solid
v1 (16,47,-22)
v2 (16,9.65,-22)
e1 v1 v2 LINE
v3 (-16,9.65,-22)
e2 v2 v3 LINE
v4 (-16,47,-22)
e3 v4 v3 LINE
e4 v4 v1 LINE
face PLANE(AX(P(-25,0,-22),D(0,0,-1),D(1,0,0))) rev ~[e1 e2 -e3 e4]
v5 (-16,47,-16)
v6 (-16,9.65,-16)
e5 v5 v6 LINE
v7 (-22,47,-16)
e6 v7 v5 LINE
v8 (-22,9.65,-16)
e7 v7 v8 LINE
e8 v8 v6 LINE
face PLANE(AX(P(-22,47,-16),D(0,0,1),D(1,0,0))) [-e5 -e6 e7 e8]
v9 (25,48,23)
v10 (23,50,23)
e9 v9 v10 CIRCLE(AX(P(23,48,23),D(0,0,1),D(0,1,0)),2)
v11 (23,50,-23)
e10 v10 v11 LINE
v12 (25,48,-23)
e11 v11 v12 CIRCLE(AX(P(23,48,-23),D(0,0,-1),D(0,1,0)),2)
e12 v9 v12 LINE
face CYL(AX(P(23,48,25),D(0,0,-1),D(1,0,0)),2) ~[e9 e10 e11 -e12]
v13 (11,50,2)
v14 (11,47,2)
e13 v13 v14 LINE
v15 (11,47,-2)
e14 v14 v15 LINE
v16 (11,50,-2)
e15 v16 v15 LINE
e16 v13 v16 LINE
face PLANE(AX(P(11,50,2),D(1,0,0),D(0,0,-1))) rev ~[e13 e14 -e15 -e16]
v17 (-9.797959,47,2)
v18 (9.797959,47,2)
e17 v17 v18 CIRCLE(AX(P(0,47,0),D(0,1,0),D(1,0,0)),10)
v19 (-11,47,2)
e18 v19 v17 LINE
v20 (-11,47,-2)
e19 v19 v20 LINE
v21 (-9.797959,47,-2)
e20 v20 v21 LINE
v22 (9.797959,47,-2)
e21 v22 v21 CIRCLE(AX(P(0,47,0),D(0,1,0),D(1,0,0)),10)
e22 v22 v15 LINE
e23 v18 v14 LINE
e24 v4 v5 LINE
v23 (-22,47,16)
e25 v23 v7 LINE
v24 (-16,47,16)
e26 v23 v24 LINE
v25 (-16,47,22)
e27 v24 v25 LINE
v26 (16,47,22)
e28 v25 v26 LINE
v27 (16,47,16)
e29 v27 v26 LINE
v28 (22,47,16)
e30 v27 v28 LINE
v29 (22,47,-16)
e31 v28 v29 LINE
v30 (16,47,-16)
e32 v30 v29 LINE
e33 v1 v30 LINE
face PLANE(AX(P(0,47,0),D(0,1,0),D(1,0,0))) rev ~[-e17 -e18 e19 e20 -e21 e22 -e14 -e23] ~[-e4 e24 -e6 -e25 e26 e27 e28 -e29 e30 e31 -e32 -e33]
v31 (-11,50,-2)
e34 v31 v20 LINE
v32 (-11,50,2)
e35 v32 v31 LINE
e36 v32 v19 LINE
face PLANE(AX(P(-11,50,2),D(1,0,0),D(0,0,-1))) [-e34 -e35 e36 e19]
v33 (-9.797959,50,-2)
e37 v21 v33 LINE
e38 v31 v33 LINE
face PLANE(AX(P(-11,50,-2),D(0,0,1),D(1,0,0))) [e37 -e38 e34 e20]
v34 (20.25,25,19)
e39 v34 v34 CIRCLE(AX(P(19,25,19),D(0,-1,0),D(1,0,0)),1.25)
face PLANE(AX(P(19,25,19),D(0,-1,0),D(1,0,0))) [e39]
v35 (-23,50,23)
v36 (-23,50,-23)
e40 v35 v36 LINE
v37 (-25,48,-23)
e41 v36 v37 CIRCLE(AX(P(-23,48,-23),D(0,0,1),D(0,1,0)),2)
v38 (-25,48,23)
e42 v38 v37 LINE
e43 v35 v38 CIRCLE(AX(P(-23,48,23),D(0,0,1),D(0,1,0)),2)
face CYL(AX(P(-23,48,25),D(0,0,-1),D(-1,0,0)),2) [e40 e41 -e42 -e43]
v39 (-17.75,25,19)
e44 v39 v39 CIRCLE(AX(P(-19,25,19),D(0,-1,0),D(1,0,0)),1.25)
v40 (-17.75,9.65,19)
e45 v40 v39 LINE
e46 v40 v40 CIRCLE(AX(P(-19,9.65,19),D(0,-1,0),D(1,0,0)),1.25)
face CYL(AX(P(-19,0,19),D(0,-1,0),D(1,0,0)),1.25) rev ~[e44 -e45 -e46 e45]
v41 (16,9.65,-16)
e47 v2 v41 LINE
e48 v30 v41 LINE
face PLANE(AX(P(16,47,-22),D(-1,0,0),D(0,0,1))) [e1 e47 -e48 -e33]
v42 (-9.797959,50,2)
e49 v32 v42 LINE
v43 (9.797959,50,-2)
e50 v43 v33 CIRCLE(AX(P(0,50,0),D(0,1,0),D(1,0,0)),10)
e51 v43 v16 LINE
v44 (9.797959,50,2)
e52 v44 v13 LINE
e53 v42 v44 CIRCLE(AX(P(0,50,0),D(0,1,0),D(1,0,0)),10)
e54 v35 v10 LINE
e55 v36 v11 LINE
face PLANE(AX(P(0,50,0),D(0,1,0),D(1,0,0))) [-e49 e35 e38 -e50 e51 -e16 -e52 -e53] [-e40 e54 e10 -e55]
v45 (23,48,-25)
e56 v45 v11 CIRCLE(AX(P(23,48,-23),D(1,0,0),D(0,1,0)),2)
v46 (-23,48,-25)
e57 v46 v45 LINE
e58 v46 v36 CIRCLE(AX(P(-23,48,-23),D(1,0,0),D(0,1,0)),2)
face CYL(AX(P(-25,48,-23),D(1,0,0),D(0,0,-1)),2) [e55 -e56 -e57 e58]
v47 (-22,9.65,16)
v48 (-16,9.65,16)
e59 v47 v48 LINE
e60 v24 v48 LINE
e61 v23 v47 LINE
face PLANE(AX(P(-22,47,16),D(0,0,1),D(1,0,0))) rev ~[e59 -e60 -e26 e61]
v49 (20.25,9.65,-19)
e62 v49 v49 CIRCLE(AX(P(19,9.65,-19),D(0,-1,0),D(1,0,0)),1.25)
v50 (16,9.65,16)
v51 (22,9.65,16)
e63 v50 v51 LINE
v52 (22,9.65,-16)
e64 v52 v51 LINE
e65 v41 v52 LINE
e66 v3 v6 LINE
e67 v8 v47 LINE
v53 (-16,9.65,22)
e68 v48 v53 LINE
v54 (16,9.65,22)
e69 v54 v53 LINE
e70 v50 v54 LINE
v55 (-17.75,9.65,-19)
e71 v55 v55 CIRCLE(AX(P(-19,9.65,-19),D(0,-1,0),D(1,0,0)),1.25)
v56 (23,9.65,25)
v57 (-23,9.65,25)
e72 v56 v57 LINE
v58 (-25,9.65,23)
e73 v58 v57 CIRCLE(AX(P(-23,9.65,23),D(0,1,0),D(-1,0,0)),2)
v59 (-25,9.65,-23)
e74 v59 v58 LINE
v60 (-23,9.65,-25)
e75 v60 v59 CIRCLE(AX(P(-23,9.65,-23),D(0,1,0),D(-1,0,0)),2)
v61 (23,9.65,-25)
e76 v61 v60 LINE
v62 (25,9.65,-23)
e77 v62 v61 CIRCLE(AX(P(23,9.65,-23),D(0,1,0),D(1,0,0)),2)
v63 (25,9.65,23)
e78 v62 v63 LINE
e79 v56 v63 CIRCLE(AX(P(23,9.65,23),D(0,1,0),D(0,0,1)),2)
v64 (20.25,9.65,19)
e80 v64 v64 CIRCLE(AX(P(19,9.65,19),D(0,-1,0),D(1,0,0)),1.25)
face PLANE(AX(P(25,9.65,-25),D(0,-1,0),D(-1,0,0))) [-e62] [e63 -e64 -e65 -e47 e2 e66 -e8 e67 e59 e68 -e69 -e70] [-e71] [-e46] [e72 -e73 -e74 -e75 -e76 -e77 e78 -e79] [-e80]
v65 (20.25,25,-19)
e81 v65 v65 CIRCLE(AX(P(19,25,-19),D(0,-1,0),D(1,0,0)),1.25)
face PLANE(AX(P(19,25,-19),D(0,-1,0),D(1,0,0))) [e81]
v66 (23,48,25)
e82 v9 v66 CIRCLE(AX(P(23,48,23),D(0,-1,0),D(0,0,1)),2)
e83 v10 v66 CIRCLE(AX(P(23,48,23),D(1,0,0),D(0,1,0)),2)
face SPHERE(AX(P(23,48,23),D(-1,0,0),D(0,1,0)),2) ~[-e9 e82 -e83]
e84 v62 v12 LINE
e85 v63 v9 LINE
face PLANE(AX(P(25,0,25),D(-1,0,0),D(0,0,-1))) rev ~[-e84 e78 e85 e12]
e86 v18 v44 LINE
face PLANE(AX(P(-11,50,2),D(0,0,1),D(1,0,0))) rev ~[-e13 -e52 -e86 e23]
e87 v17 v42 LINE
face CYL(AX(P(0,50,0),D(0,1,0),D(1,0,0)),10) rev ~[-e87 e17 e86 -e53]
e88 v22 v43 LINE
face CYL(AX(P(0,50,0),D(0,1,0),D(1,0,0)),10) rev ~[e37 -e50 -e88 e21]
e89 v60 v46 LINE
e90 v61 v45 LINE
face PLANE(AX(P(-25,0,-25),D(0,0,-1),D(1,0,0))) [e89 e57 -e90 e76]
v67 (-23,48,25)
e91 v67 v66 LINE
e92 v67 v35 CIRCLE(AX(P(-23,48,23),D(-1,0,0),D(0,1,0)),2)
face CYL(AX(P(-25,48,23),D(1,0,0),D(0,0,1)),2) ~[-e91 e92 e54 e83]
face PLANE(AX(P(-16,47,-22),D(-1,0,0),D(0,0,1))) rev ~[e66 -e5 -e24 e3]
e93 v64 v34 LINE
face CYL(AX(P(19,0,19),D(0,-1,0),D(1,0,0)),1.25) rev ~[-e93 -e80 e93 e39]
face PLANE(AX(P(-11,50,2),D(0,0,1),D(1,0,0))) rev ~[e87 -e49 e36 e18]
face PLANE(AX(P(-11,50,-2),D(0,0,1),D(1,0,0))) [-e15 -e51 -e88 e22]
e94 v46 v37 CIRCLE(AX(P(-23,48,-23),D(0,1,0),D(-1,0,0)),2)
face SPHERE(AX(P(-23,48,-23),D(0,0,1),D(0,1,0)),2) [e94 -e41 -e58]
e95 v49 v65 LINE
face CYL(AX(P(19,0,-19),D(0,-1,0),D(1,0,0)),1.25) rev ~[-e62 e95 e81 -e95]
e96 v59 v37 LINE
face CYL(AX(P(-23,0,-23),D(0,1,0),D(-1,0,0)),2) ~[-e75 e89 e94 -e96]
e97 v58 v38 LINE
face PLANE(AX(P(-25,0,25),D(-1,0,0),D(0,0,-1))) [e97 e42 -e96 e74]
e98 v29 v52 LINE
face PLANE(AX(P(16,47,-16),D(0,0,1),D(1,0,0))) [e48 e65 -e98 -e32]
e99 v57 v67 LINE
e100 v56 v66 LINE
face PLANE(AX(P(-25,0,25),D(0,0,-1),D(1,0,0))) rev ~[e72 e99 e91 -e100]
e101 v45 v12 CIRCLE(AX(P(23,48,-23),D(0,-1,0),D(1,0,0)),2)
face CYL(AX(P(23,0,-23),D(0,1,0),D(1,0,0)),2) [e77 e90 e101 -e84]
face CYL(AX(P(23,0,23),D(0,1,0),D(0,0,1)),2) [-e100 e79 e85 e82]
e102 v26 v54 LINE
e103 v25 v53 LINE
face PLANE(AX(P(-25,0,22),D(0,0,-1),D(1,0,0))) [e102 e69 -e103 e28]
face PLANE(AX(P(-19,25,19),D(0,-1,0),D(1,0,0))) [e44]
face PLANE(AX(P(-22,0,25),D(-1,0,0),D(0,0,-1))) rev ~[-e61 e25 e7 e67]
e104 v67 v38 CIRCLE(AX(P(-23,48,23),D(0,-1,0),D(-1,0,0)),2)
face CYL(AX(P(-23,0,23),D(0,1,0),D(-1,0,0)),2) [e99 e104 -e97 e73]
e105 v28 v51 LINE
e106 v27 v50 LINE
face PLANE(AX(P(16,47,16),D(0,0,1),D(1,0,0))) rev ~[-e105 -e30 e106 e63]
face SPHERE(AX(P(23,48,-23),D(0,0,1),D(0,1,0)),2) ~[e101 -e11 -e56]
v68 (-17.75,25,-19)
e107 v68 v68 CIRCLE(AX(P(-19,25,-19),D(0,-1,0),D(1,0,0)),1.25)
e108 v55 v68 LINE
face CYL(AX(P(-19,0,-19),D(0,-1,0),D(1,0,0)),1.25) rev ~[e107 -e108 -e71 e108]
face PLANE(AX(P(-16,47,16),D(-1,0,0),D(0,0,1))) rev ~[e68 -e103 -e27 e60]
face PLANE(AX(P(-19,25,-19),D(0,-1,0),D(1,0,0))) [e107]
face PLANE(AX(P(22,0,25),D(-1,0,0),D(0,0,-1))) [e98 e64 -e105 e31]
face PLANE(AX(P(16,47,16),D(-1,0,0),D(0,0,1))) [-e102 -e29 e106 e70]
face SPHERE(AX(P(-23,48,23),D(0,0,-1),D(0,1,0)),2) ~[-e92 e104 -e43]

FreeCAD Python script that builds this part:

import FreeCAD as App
import Part
import Sketcher


def edges_at(feature, points):
    """Names of the edges that pass closest to the given points."""
    edges = feature.Shape.Edges
    near = lambda p: min(range(len(edges)), key=lambda i: edges[i].distToShape(Part.Vertex(*p))[0])
    return sorted({f"Edge{near(p) + 1}" for p in points})


def faces_at(feature, points):
    """Names of the faces that lie closest to the given points."""
    faces = feature.Shape.Faces
    near = lambda p: min(range(len(faces)), key=lambda i: faces[i].distToShape(Part.Vertex(*p))[0])
    return sorted({f"Face{near(p) + 1}" for p in points})

doc = App.newDocument("Part")
body = doc.addObject("PartDesign::Body", "Body")

sketch1 = body.newObject("Sketcher::SketchObject", "Sketch")
sketch1.AttachmentSupport = (doc.getObject("XZ_Plane"), [""])
sketch1.MapMode = "FlatFace"
sketch1.addGeometry([
    Part.LineSegment(App.Vector(-25, -25, 0), App.Vector(-25, 25, 0)),
    Part.LineSegment(App.Vector(-25, 25, 0), App.Vector(25, 25, 0)),
    Part.LineSegment(App.Vector(25, 25, 0), App.Vector(25, -25, 0)),
    Part.LineSegment(App.Vector(25, -25, 0), App.Vector(-25, -25, 0)),
], False)
sketch1.addConstraint([
    Sketcher.Constraint("Coincident", 0, 2, 1, 1),
    Sketcher.Constraint("Coincident", 1, 2, 2, 1),
    Sketcher.Constraint("Coincident", 2, 2, 3, 1),
    Sketcher.Constraint("Coincident", 3, 2, 0, 1),
    Sketcher.Constraint("Vertical", 0),
    Sketcher.Constraint("Horizontal", 1),
    Sketcher.Constraint("Vertical", 2),
    Sketcher.Constraint("Horizontal", 3),
    Sketcher.Constraint("Symmetric", 0, 2, 2, 2, -1, 1),
    Sketcher.Constraint("Equal", 3, 0),
    Sketcher.Constraint("DistanceX", 1, 1, 1, 2, 50.0),
])
pad1 = body.newObject("PartDesign::Pad", "Pad")
pad1.Profile = sketch1
pad1.Length = 50
pad1.Reversed = True
doc.recompute()

thickness = body.newObject("PartDesign::Thickness", "Thickness")
thickness.Base = (pad1, faces_at(pad1, [(0, 0, 0)]))
thickness.Value = 3
thickness.Reversed = True
thickness.Join = "Intersection"
doc.recompute()

fillet = body.newObject("PartDesign::Fillet", "Fillet")
fillet.Base = (thickness, edges_at(thickness, [
    (-25, 50, 0),
    (0, 50, 25),
    (25, 50, 0),
    (0, 50, -25),
    (25, 25, 25),
    (-25, 25, 25),
    (-25, 25, -25),
    (25, 25, -25),
]))
fillet.Radius = 2

sketch2 = body.newObject("Sketcher::SketchObject", "Sketch001")
sketch2.AttachmentSupport = (doc.getObject("XZ_Plane"), [""])
sketch2.MapMode = "FlatFace"
sketch2.AttachmentOffset = App.Placement(App.Vector(0, 0, -47), App.Rotation())
sketch2.addGeometry([
    Part.LineSegment(App.Vector(16, 22, 0), App.Vector(16, 16, 0)),
    Part.LineSegment(App.Vector(16, 16, 0), App.Vector(22, 16, 0)),
    Part.LineSegment(App.Vector(22, 16, 0), App.Vector(22, 22, 0)),
    Part.LineSegment(App.Vector(22, 22, 0), App.Vector(16, 22, 0)),
    Part.LineSegment(App.Vector(-22, 22, 0), App.Vector(-22, 16, 0)),
    Part.LineSegment(App.Vector(-22, 16, 0), App.Vector(-16, 16, 0)),
    Part.LineSegment(App.Vector(-16, 16, 0), App.Vector(-16, 22, 0)),
    Part.LineSegment(App.Vector(-16, 22, 0), App.Vector(-22, 22, 0)),
    Part.LineSegment(App.Vector(16, -16, 0), App.Vector(16, -22, 0)),
    Part.LineSegment(App.Vector(16, -22, 0), App.Vector(22, -22, 0)),
    Part.LineSegment(App.Vector(22, -22, 0), App.Vector(22, -16, 0)),
    Part.LineSegment(App.Vector(22, -16, 0), App.Vector(16, -16, 0)),
    Part.LineSegment(App.Vector(-22, -16, 0), App.Vector(-22, -22, 0)),
    Part.LineSegment(App.Vector(-22, -22, 0), App.Vector(-16, -22, 0)),
    Part.LineSegment(App.Vector(-16, -22, 0), App.Vector(-16, -16, 0)),
    Part.LineSegment(App.Vector(-16, -16, 0), App.Vector(-22, -16, 0)),
], False)
sketch2.addConstraint([
    Sketcher.Constraint("Coincident", 0, 2, 1, 1),
    Sketcher.Constraint("Coincident", 1, 2, 2, 1),
    Sketcher.Constraint("Coincident", 2, 2, 3, 1),
    Sketcher.Constraint("Coincident", 3, 2, 0, 1),
    Sketcher.Constraint("Coincident", 4, 2, 5, 1),
    Sketcher.Constraint("Coincident", 5, 2, 6, 1),
    Sketcher.Constraint("Coincident", 6, 2, 7, 1),
    Sketcher.Constraint("Coincident", 7, 2, 4, 1),
    Sketcher.Constraint("Coincident", 8, 2, 9, 1),
    Sketcher.Constraint("Coincident", 9, 2, 10, 1),
    Sketcher.Constraint("Coincident", 10, 2, 11, 1),
    Sketcher.Constraint("Coincident", 11, 2, 8, 1),
    Sketcher.Constraint("Coincident", 12, 2, 13, 1),
    Sketcher.Constraint("Coincident", 13, 2, 14, 1),
    Sketcher.Constraint("Coincident", 14, 2, 15, 1),
    Sketcher.Constraint("Coincident", 15, 2, 12, 1),
    Sketcher.Constraint("Vertical", 0),
    Sketcher.Constraint("Horizontal", 1),
    Sketcher.Constraint("Vertical", 2),
    Sketcher.Constraint("Horizontal", 3),
    Sketcher.Constraint("Vertical", 4),
    Sketcher.Constraint("Horizontal", 5),
    Sketcher.Constraint("Vertical", 6),
    Sketcher.Constraint("Horizontal", 7),
    Sketcher.Constraint("Vertical", 8),
    Sketcher.Constraint("Horizontal", 9),
    Sketcher.Constraint("Vertical", 10),
    Sketcher.Constraint("Horizontal", 11),
    Sketcher.Constraint("Vertical", 12),
    Sketcher.Constraint("Horizontal", 13),
    Sketcher.Constraint("Vertical", 14),
    Sketcher.Constraint("Horizontal", 15),
    Sketcher.Constraint("Symmetric", 6, 2, 8, 2, -1, 1),
    Sketcher.Constraint("Symmetric", 4, 2, 10, 2, -1, 1),
    Sketcher.Constraint("Symmetric", 2, 2, 12, 2, -1, 1),
    Sketcher.Constraint("Symmetric", 0, 2, 14, 2, -1, 1),
    Sketcher.Constraint("Symmetric", 1, 2, 4, 2, -2),
    Sketcher.Constraint("Symmetric", 3, 2, 6, 2, -2),
    Sketcher.Constraint("Equal", 15, 0),
    Sketcher.Constraint("DistanceX", 1, 1, 1, 2, 6.0),
    Sketcher.Constraint("DistanceX", -1, 1, 0, 2, 16.0),
    Sketcher.Constraint("DistanceY", -1, 1, 0, 2, 16.0),
])
pad2 = body.newObject("PartDesign::Pad", "Pad001")
pad2.Profile = sketch2
pad2.Length = 47

sketch3 = body.newObject("Sketcher::SketchObject", "Sketch002")
sketch3.AttachmentSupport = (doc.getObject("XZ_Plane"), [""])
sketch3.MapMode = "FlatFace"
sketch3.addGeometry([
    Part.Circle(App.Vector(-19, 19, 0), App.Vector(0, 0, 1), 1.25),
    Part.Circle(App.Vector(19, 19, 0), App.Vector(0, 0, 1), 1.25),
    Part.Circle(App.Vector(19, -19, 0), App.Vector(0, 0, 1), 1.25),
    Part.Circle(App.Vector(-19, -19, 0), App.Vector(0, 0, 1), 1.25),
], False)
sketch3.addConstraint([
    Sketcher.Constraint("Equal", 0, 1),
    Sketcher.Constraint("Equal", 1, 2),
    Sketcher.Constraint("Equal", 2, 3),
    Sketcher.Constraint("Symmetric", 0, 3, 2, 3, -1, 1),
    Sketcher.Constraint("Symmetric", 1, 3, 3, 3, -1, 1),
    Sketcher.Constraint("Symmetric", 0, 3, 1, 3, -2),
    Sketcher.Constraint("Diameter", 0, 2.5),
    Sketcher.Constraint("DistanceX", 0, 3, -1, 1, 19.0),
    Sketcher.Constraint("DistanceY", -1, 1, 0, 3, 19.0),
])
pocket1 = body.newObject("PartDesign::Pocket", "Pocket")
pocket1.Profile = sketch3
pocket1.Length = 25

sketch4 = body.newObject("Sketcher::SketchObject", "Sketch003")
sketch4.AttachmentSupport = (doc.getObject("XZ_Plane"), [""])
sketch4.MapMode = "FlatFace"
sketch4.AttachmentOffset = App.Placement(App.Vector(0, 0, -50), App.Rotation())
sketch4.addGeometry(Part.Circle(App.Vector(0, 0, 0), App.Vector(0, 0, 1), 10), False)
sketch4.addConstraint([
    Sketcher.Constraint("Coincident", 0, 3, -1, 1),
    Sketcher.Constraint("Diameter", 0, 20.0),
])
pocket2 = body.newObject("PartDesign::Pocket", "Pocket001")
pocket2.Profile = sketch4
pocket2.Type = "ThroughAll"
pocket2.Reversed = True

sketch5 = body.newObject("Sketcher::SketchObject", "Sketch004")
sketch5.AttachmentSupport = (doc.getObject("XZ_Plane"), [""])
sketch5.MapMode = "FlatFace"
sketch5.AttachmentOffset = App.Placement(App.Vector(0, 0, -50), App.Rotation())
sketch5.addGeometry([
    Part.LineSegment(App.Vector(-11, -2, 0), App.Vector(-11, 2, 0)),
    Part.LineSegment(App.Vector(-11, 2, 0), App.Vector(11, 2, 0)),
    Part.LineSegment(App.Vector(11, 2, 0), App.Vector(11, -2, 0)),
    Part.LineSegment(App.Vector(11, -2, 0), App.Vector(-11, -2, 0)),
], False)
sketch5.addConstraint([
    Sketcher.Constraint("Coincident", 0, 2, 1, 1),
    Sketcher.Constraint("Coincident", 1, 2, 2, 1),
    Sketcher.Constraint("Coincident", 2, 2, 3, 1),
    Sketcher.Constraint("Coincident", 3, 2, 0, 1),
    Sketcher.Constraint("Vertical", 0),
    Sketcher.Constraint("Horizontal", 1),
    Sketcher.Constraint("Vertical", 2),
    Sketcher.Constraint("Horizontal", 3),
    Sketcher.Constraint("Symmetric", 0, 2, 2, 2, -1, 1),
    Sketcher.Constraint("DistanceX", 1, 1, 1, 2, 22.0),
    Sketcher.Constraint("DistanceY", 0, 1, 0, 2, 4.0),
])
pocket3 = body.newObject("PartDesign::Pocket", "Pocket002")
pocket3.Profile = sketch5
pocket3.Type = "ThroughAll"
pocket3.Reversed = True

sketch6 = body.newObject("Sketcher::SketchObject", "Sketch005")
sketch6.AttachmentSupport = (doc.getObject("XY_Plane"), [""])
sketch6.MapMode = "FlatFace"
sketch6.AttachmentOffset = App.Placement(App.Vector(0, 0, -25), App.Rotation())
sketch6.addGeometry([
    Part.LineSegment(App.Vector(25, 9.65, 0), App.Vector(25, 0, 0)),
    Part.LineSegment(App.Vector(25, 0, 0), App.Vector(-25, 0, 0)),
    Part.LineSegment(App.Vector(-25, 0, 0), App.Vector(-25, 9.65, 0)),
    Part.LineSegment(App.Vector(-25, 9.65, 0), App.Vector(25, 9.65, 0)),
], False)
sketch6.addConstraint([
    Sketcher.Constraint("Coincident", 0, 2, 1, 1),
    Sketcher.Constraint("Coincident", 1, 2, 2, 1),
    Sketcher.Constraint("Coincident", 2, 2, 3, 1),
    Sketcher.Constraint("Coincident", 3, 2, 0, 1),
    Sketcher.Constraint("Vertical", 0),
    Sketcher.Constraint("Horizontal", 1),
    Sketcher.Constraint("Vertical", 2),
    Sketcher.Constraint("Horizontal", 3),
    Sketcher.Constraint("Symmetric", 0, 2, 1, 2, -1, 1),
    Sketcher.Constraint("DistanceX", 1, 2, 1, 1, 50.0),
    Sketcher.Constraint("DistanceY", 0, 2, 0, 1, 9.65),
])
pocket4 = body.newObject("PartDesign::Pocket", "Pocket003")
pocket4.Profile = sketch6
pocket4.Type = "ThroughAll"
pocket4.Reversed = True

doc.recompute()
